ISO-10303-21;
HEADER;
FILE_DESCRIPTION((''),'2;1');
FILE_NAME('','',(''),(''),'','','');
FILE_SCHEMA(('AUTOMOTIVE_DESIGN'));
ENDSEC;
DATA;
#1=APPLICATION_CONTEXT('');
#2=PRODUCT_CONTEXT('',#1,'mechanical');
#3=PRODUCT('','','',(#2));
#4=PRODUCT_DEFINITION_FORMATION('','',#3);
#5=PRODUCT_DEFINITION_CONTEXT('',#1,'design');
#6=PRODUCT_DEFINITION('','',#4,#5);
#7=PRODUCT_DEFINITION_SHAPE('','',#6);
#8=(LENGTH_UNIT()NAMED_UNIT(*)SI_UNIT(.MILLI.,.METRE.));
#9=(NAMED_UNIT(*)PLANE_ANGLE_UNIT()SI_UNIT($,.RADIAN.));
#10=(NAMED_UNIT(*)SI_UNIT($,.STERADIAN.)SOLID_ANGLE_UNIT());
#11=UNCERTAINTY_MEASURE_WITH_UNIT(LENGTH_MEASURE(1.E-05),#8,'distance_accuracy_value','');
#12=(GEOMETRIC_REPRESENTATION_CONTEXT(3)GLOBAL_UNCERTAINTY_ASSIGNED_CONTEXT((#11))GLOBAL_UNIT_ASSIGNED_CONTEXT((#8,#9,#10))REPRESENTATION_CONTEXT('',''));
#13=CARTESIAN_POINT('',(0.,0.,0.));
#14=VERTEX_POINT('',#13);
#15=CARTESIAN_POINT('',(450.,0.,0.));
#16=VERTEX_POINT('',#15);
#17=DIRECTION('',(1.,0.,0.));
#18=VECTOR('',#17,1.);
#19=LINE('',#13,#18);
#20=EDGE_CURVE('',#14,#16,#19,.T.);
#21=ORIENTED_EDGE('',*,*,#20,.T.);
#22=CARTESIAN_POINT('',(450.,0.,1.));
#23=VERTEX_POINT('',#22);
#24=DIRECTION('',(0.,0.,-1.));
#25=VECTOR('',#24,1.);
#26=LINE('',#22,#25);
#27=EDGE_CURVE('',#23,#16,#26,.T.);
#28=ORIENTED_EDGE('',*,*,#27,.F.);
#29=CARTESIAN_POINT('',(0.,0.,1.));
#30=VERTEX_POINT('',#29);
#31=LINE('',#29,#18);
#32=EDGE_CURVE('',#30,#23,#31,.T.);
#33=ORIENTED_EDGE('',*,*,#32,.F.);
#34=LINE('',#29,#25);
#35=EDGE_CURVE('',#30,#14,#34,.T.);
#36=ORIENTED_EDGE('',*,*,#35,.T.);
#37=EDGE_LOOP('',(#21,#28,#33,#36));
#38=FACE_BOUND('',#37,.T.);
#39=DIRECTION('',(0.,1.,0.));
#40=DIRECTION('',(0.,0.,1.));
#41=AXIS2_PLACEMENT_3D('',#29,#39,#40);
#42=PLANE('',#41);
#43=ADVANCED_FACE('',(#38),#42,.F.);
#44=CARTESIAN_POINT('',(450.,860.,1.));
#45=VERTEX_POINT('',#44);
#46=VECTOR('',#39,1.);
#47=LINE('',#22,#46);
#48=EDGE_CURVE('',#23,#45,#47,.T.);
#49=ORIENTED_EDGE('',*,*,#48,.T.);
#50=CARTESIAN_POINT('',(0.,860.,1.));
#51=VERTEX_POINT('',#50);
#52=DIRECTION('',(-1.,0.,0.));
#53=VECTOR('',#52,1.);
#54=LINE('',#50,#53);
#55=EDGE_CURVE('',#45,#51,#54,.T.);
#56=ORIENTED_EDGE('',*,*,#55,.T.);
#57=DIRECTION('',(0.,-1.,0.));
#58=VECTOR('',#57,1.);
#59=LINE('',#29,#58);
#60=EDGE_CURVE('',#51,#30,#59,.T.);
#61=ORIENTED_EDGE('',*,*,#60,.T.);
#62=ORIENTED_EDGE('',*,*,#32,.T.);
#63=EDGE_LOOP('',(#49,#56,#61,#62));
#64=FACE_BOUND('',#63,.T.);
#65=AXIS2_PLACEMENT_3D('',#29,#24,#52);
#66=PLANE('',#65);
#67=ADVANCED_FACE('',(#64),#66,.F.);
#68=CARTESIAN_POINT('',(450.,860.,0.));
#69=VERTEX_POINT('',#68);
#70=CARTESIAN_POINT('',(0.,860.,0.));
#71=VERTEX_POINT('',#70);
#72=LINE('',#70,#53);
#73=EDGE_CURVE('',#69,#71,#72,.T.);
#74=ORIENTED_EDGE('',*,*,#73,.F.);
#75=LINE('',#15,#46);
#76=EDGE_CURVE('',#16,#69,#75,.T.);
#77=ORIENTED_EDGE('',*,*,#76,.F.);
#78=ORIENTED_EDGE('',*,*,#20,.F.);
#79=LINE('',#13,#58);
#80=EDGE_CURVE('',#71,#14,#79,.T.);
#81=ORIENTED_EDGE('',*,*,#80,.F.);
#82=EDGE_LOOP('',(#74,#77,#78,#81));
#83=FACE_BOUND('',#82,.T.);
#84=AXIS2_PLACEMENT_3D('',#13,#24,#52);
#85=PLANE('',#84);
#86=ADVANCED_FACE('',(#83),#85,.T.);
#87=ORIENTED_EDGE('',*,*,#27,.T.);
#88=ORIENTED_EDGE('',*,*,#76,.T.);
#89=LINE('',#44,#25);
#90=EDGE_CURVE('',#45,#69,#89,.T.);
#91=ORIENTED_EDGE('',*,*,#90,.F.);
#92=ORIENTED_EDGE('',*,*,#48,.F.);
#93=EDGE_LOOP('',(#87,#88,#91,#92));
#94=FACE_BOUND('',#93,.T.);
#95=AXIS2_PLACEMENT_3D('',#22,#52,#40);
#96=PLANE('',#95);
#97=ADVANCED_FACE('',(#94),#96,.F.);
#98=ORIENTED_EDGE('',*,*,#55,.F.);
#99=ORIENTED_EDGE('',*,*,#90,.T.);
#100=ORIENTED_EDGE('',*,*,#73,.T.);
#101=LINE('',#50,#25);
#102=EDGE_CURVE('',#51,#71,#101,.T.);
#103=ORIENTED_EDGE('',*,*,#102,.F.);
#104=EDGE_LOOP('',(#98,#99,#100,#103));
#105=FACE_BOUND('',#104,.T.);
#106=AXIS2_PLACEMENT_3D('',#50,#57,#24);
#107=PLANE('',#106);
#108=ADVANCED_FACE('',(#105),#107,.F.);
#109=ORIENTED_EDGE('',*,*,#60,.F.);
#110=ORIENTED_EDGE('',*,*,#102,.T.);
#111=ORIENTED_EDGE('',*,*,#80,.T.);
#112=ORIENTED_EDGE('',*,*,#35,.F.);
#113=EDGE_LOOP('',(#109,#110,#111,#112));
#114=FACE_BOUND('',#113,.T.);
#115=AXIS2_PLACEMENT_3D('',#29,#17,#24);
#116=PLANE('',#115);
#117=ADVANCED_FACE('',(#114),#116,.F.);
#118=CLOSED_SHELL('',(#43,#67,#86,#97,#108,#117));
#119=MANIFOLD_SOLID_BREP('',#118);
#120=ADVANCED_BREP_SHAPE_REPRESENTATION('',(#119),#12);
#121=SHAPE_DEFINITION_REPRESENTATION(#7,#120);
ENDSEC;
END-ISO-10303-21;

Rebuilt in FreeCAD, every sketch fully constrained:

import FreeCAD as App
import Part
import Sketcher

V = App.Vector

doc = App.newDocument("Part")
body = doc.addObject("PartDesign::Body", "Body")

# Sketch on XY plane
sketch1 = doc.addObject("Sketcher::SketchObject", "Sketch")
body.addObject(sketch1)
sketch1.AttachmentSupport = (doc.XY_Plane, [""])
sketch1.MapMode = "FlatFace"
sketch1.addGeometry(Part.LineSegment(V(0, 860, 0), V(0, 0, 0)), False)
sketch1.addGeometry(Part.LineSegment(V(0, 0, 0), V(450, 0, 0)), False)
sketch1.addGeometry(Part.LineSegment(V(450, 0, 0), V(450, 860, 0)), False)
sketch1.addGeometry(Part.LineSegment(V(450, 860, 0), V(0, 860, 0)), False)
sketch1.addConstraint(Sketcher.Constraint("Coincident", 0, 2, 1, 1))
sketch1.addConstraint(Sketcher.Constraint("Coincident", 1, 2, 2, 1))
sketch1.addConstraint(Sketcher.Constraint("Coincident", 2, 2, 3, 1))
sketch1.addConstraint(Sketcher.Constraint("Coincident", 3, 2, 0, 1))
sketch1.addConstraint(Sketcher.Constraint("Vertical", 0))
sketch1.addConstraint(Sketcher.Constraint("Horizontal", 1))
sketch1.addConstraint(Sketcher.Constraint("Vertical", 2))
sketch1.addConstraint(Sketcher.Constraint("Horizontal", 3))
sketch1.addConstraint(Sketcher.Constraint("Coincident", 0, 2, -1, 1))
sketch1.addConstraint(Sketcher.Constraint("DistanceX", 1, 1, 1, 2, 450.0))
sketch1.addConstraint(Sketcher.Constraint("DistanceY", 0, 2, 0, 1, 860.0))
pad1 = doc.addObject("PartDesign::Pad", "Pad")
body.addObject(pad1)
pad1.Profile = sketch1
pad1.Length = 1

doc.recompute()
